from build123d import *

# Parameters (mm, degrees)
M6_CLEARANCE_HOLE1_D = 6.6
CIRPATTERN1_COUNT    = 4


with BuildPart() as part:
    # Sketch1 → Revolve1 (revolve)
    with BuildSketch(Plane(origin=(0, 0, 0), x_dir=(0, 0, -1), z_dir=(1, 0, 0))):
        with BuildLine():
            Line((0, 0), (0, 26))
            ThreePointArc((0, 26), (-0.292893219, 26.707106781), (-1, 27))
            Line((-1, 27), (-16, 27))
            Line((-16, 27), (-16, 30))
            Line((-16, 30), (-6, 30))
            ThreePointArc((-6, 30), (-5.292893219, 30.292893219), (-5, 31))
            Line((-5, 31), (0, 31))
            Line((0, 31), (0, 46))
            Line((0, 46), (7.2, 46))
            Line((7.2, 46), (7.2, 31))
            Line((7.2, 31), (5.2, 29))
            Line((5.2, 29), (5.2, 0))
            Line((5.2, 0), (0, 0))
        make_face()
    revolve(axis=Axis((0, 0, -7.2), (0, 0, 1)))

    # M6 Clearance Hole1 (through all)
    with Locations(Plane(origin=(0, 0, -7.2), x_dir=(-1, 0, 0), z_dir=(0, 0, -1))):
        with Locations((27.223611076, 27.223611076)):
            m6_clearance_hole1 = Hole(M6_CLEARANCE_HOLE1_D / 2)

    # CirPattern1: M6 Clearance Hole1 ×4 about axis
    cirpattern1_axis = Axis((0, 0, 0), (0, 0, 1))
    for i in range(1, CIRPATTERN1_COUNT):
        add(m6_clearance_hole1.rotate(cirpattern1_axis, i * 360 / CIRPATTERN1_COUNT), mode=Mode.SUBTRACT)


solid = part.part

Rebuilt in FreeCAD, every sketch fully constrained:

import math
import FreeCAD as App
import Part
import Sketcher
from FreeCAD import Vector
Q = App.Units.Quantity

doc = App.newDocument("Part")
body = doc.addObject("PartDesign::Body", "Body")

# Sketch on YZ plane
sketch1 = body.newObject("Sketcher::SketchObject", "Sketch")
sketch1.AttachmentSupport = (doc.getObject("YZ_Plane"), [""])
sketch1.MapMode = "FlatFace"
sketch1.addGeometry(Part.LineSegment(Vector(26, 0, 0), Vector(0, 0, 0)), False)
sketch1.addGeometry(Part.LineSegment(Vector(0, 0, 0), Vector(0, -5.2, 0)), False)
sketch1.addGeometry(Part.LineSegment(Vector(0, -5.2, 0), Vector(29, -5.2, 0)), False)
sketch1.addGeometry(Part.LineSegment(Vector(29, -5.2, 0), Vector(31, -7.2, 0)), False)
sketch1.addGeometry(Part.LineSegment(Vector(31, -7.2, 0), Vector(46, -7.2, 0)), False)
sketch1.addGeometry(Part.LineSegment(Vector(46, -7.2, 0), Vector(46, 0, 0)), False)
sketch1.addGeometry(Part.LineSegment(Vector(46, 0, 0), Vector(31, 0, 0)), False)
sketch1.addGeometry(Part.LineSegment(Vector(31, 0, 0), Vector(31, 5, 0)), False)
sketch1.addGeometry(Part.ArcOfCircle(Part.Circle(Vector(31, 6, 0), Vector(0, 0, 1), 1), math.radians(-180), math.radians(-90)), False)
sketch1.addGeometry(Part.LineSegment(Vector(30, 6, 0), Vector(30, 16, 0)), False)
sketch1.addGeometry(Part.LineSegment(Vector(30, 16, 0), Vector(27, 16, 0)), False)
sketch1.addGeometry(Part.LineSegment(Vector(27, 16, 0), Vector(27, 1, 0)), False)
sketch1.addGeometry(Part.ArcOfCircle(Part.Circle(Vector(26, 1, 0), Vector(0, 0, 1), 1), math.radians(-90), math.radians(0)), False)
sketch1.addConstraint(Sketcher.Constraint("Coincident", 0, 2, 1, 1))
sketch1.addConstraint(Sketcher.Constraint("Coincident", 1, 2, 2, 1))
sketch1.addConstraint(Sketcher.Constraint("Coincident", 2, 2, 3, 1))
sketch1.addConstraint(Sketcher.Constraint("Coincident", 3, 2, 4, 1))
sketch1.addConstraint(Sketcher.Constraint("Coincident", 4, 2, 5, 1))
sketch1.addConstraint(Sketcher.Constraint("Coincident", 5, 2, 6, 1))
sketch1.addConstraint(Sketcher.Constraint("Coincident", 6, 2, 7, 1))
sketch1.addConstraint(Sketcher.Constraint("Coincident", 7, 2, 8, 2))
sketch1.addConstraint(Sketcher.Constraint("Tangent", 8, 1, 9, 1))
sketch1.addConstraint(Sketcher.Constraint("Coincident", 9, 2, 10, 1))
sketch1.addConstraint(Sketcher.Constraint("Coincident", 10, 2, 11, 1))
sketch1.addConstraint(Sketcher.Constraint("Tangent", 11, 2, 12, 2))
sketch1.addConstraint(Sketcher.Constraint("Tangent", 12, 1, 0, 1))
sketch1.addConstraint(Sketcher.Constraint("Horizontal", 0))
sketch1.addConstraint(Sketcher.Constraint("Vertical", 1))
sketch1.addConstraint(Sketcher.Constraint("Horizontal", 2))
sketch1.addConstraint(Sketcher.Constraint("Horizontal", 4))
sketch1.addConstraint(Sketcher.Constraint("Vertical", 5))
sketch1.addConstraint(Sketcher.Constraint("Horizontal", 6))
sketch1.addConstraint(Sketcher.Constraint("Vertical", 7))
sketch1.addConstraint(Sketcher.Constraint("Vertical", 9))
sketch1.addConstraint(Sketcher.Constraint("Horizontal", 10))
sketch1.addConstraint(Sketcher.Constraint("Vertical", 11))
sketch1.addConstraint(Sketcher.Constraint("Coincident", 0, 2, -1, 1))
sketch1.addConstraint(Sketcher.Constraint("Equal", 8, 12))
sketch1.addConstraint(Sketcher.Constraint("PointOnObject", 5, 2, -1))
sketch1.addConstraint(Sketcher.Constraint("Vertical", 8, 3, 3, 2))
sketch1.addConstraint(Sketcher.Constraint("Vertical", 3, 2, 6, 2))
sketch1.addConstraint(Sketcher.Constraint("Equal", 6, 11))
sketch1.addConstraint(Sketcher.Constraint("Radius", 8, 1.0))
sketch1.addConstraint(Sketcher.Constraint("DistanceX", 0, 2, 0, 1, 26.0))
sketch1.addConstraint(Sketcher.Constraint("DistanceX", 2, 1, 2, 2, 29.0))
sketch1.addConstraint(Sketcher.Constraint("DistanceX", 4, 1, 4, 2, 15.0))
sketch1.addConstraint(Sketcher.Constraint("DistanceX", 10, 2, 10, 1, 3.0))
sketch1.addConstraint(Sketcher.Constraint("DistanceY", 7, 1, 7, 2, 5.0))
sketch1.addConstraint(Sketcher.Constraint("Angle", 3, Q("-45 deg")))
sketch1.addConstraint(Sketcher.Constraint("DistanceY", 1, 2, 1, 1, 5.2))
revolution = body.newObject("PartDesign::Revolution", "Revolution")
revolution.Profile = sketch1
revolution.ReferenceAxis = (sketch1, ["V_Axis"])
revolution.Angle = 360

# Sketch on XY plane
sketch2 = body.newObject("Sketcher::SketchObject", "Sketch001")
sketch2.AttachmentSupport = (doc.getObject("XY_Plane"), [""])
sketch2.MapMode = "FlatFace"
sketch2.AttachmentOffset = App.Placement(Vector(0, 0, -7.2), App.Rotation())
sketch2.addGeometry(Part.Circle(Vector(-27.223611, 27.223611, 0), Vector(0, 0, 1), 3.3), False)
sketch2.addConstraint(Sketcher.Constraint("Diameter", 0, 6.6))
sketch2.addConstraint(Sketcher.Constraint("DistanceX", 0, 3, -1, 1, 27.223611))
sketch2.addConstraint(Sketcher.Constraint("DistanceY", -1, 1, 0, 3, 27.223611))
doc.recompute()
hole = body.newObject("PartDesign::Hole", "Hole")
hole.Profile = sketch2
hole.ThreadType = "None"
hole.Diameter = 6.6
hole.DepthType = "ThroughAll"
hole.Reversed = True
doc.recompute()

polarpattern = body.newObject("PartDesign::PolarPattern", "PolarPattern")
polarpattern.Originals = [hole]
polarpattern.Axis = (doc.getObject("Z_Axis"), [""])
polarpattern.Angle = 360
polarpattern.Occurrences = 4
body.Tip = polarpattern

doc.recompute()
